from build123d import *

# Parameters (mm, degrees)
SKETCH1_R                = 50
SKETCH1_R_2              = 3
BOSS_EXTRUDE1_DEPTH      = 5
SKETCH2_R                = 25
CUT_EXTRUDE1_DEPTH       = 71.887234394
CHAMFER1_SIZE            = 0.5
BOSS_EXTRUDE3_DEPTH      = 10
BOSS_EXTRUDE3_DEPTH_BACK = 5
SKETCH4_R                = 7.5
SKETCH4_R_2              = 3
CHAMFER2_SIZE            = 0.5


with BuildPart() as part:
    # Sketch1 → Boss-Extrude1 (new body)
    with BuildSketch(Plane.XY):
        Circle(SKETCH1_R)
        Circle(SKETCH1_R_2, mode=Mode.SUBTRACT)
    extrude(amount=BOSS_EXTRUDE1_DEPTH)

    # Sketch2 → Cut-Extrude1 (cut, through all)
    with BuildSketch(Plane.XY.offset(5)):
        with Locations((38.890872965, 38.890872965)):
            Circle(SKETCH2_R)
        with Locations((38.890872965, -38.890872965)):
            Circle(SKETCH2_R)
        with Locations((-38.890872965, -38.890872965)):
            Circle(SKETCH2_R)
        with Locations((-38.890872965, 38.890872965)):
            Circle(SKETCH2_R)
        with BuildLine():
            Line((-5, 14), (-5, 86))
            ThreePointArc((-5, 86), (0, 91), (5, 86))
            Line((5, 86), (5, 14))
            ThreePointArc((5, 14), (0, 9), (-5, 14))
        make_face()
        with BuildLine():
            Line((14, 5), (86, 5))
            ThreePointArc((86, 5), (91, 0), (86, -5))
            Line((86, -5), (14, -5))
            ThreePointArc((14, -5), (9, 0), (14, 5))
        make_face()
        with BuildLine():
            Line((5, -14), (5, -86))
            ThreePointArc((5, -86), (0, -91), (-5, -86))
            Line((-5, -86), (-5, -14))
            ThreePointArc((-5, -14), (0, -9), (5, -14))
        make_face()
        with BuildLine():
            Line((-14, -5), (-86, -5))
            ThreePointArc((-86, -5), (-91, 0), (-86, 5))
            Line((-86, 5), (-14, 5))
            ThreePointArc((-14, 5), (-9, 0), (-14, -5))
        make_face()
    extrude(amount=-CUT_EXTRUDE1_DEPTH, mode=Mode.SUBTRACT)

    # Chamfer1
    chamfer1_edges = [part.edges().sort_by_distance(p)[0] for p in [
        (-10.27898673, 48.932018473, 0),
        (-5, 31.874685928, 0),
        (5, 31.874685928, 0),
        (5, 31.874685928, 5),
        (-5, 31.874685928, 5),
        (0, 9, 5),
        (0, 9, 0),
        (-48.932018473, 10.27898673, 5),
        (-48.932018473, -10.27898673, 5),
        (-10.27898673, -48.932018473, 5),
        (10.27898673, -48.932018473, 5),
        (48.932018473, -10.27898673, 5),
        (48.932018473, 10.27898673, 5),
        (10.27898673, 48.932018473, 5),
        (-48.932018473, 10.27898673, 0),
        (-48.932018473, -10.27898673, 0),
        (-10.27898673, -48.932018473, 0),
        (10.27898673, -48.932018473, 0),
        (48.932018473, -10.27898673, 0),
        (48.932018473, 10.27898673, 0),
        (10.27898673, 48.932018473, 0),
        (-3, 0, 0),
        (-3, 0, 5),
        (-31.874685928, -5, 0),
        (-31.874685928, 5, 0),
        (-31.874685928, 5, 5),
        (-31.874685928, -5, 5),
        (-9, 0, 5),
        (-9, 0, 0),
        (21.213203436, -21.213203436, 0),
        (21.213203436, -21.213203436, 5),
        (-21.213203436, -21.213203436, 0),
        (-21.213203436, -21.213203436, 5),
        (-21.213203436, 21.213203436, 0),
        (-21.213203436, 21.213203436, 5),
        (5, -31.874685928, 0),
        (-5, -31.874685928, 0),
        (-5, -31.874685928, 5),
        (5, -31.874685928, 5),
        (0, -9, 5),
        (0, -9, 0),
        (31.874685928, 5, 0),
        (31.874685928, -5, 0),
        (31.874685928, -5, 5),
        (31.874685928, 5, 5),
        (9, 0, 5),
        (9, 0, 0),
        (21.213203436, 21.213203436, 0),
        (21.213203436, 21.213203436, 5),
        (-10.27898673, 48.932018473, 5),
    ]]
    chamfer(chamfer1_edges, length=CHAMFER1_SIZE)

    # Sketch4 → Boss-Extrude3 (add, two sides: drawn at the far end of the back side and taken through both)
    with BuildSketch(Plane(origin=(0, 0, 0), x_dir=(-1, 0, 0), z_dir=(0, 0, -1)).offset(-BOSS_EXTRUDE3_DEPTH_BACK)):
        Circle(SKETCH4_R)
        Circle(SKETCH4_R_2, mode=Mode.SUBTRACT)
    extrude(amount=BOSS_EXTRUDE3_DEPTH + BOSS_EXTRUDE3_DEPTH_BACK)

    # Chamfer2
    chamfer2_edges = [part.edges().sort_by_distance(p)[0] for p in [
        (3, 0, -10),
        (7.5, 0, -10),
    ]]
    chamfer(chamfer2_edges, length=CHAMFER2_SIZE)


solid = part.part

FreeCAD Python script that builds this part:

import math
import FreeCAD as App
import Part
import Sketcher
from FreeCAD import Vector


def edges_at(feature, points):
    """Names of the edges that pass closest to the given points."""
    edges = feature.Shape.Edges
    near = lambda p: min(range(len(edges)), key=lambda i: edges[i].distToShape(Part.Vertex(*p))[0])
    return sorted({f"Edge{near(p) + 1}" for p in points})

doc = App.newDocument("Part")
body = doc.addObject("PartDesign::Body", "Body")

# Sketch on XY plane
sketch1 = body.newObject("Sketcher::SketchObject", "Sketch")
sketch1.AttachmentSupport = (doc.getObject("XY_Plane"), [""])
sketch1.MapMode = "FlatFace"
sketch1.addGeometry([
    Part.Circle(Vector(0, 0, 0), Vector(0, 0, 1), 50),
    Part.Circle(Vector(0, 0, 0), Vector(0, 0, 1), 3),
], False)
sketch1.addConstraint([
    Sketcher.Constraint("Coincident", 0, 3, -1, 1),
    Sketcher.Constraint("Coincident", 1, 3, -1, 1),
    Sketcher.Constraint("Diameter", 0, 100.0),
    Sketcher.Constraint("Diameter", 1, 6.0),
])
pad1 = body.newObject("PartDesign::Pad", "Pad")
pad1.Profile = sketch1
pad1.Length = 5

# Sketch on XY plane
sketch2 = body.newObject("Sketcher::SketchObject", "Sketch001")
sketch2.AttachmentSupport = (doc.getObject("XY_Plane"), [""])
sketch2.MapMode = "FlatFace"
sketch2.AttachmentOffset = App.Placement(Vector(0, 0, 5), App.Rotation())
sketch2.addGeometry([
    Part.Circle(Vector(39, 39, 0), Vector(0, 0, 1), 25),  # 0
    Part.Circle(Vector(39, -39, 0), Vector(0, 0, 1), 25),  # 1
    Part.Circle(Vector(-39, -39, 0), Vector(0, 0, 1), 25),  # 2
    Part.Circle(Vector(-39, 39, 0), Vector(0, 0, 1), 25),  # 3
    Part.LineSegment(Vector(-5, 86, 0), Vector(-5, 14, 0)),  # 4
    Part.ArcOfCircle(Part.Circle(Vector(0, 14, 0), Vector(0, 0, 1), 5), math.radians(180), math.radians(360)),  # 5
    Part.LineSegment(Vector(5, 14, 0), Vector(5, 86, 0)),  # 6
    Part.ArcOfCircle(Part.Circle(Vector(0, 86, 0), Vector(0, 0, 1), 5), math.radians(0), math.radians(180)),  # 7
    Part.LineSegment(Vector(86, 5, 0), Vector(14, 5, 0)),  # 8
    Part.ArcOfCircle(Part.Circle(Vector(14, 0, 0), Vector(0, 0, 1), 5), math.radians(90), math.radians(270)),  # 9
    Part.LineSegment(Vector(14, -5, 0), Vector(86, -5, 0)),  # 10
    Part.ArcOfCircle(Part.Circle(Vector(86, 0, 0), Vector(0, 0, 1), 5), math.radians(-90), math.radians(90)),  # 11
    Part.LineSegment(Vector(5, -86, 0), Vector(5, -14, 0)),  # 12
    Part.ArcOfCircle(Part.Circle(Vector(0, -14, 0), Vector(0, 0, 1), 5), math.radians(0), math.radians(180)),  # 13
    Part.LineSegment(Vector(-5, -14, 0), Vector(-5, -86, 0)),  # 14
    Part.ArcOfCircle(Part.Circle(Vector(0, -86, 0), Vector(0, 0, 1), 5), math.radians(180), math.radians(360)),  # 15
    Part.LineSegment(Vector(-86, -5, 0), Vector(-14, -5, 0)),  # 16
    Part.ArcOfCircle(Part.Circle(Vector(-14, 0, 0), Vector(0, 0, 1), 5), math.radians(-90), math.radians(90)),  # 17
    Part.LineSegment(Vector(-14, 5, 0), Vector(-86, 5, 0)),  # 18
    Part.ArcOfCircle(Part.Circle(Vector(-86, 0, 0), Vector(0, 0, 1), 5), math.radians(90), math.radians(270)),  # 19
], False)
sketch2.addConstraint([
    Sketcher.Constraint("Tangent", 4, 2, 5, 1),
    Sketcher.Constraint("Tangent", 5, 2, 6, 1),
    Sketcher.Constraint("Tangent", 6, 2, 7, 1),
    Sketcher.Constraint("Tangent", 7, 2, 4, 1),
    Sketcher.Constraint("Tangent", 8, 2, 9, 1),
    Sketcher.Constraint("Tangent", 9, 2, 10, 1),
    Sketcher.Constraint("Tangent", 10, 2, 11, 1),
    Sketcher.Constraint("Tangent", 11, 2, 8, 1),
    Sketcher.Constraint("Tangent", 12, 2, 13, 1),
    Sketcher.Constraint("Tangent", 13, 2, 14, 1),
    Sketcher.Constraint("Tangent", 14, 2, 15, 1),
    Sketcher.Constraint("Tangent", 15, 2, 12, 1),
    Sketcher.Constraint("Tangent", 16, 2, 17, 1),
    Sketcher.Constraint("Tangent", 17, 2, 18, 1),
    Sketcher.Constraint("Tangent", 18, 2, 19, 1),
    Sketcher.Constraint("Tangent", 19, 2, 16, 1),
    Sketcher.Constraint("Vertical", 4),
    Sketcher.Constraint("Vertical", 6),
    Sketcher.Constraint("Horizontal", 8),
    Sketcher.Constraint("Horizontal", 10),
    Sketcher.Constraint("Vertical", 12),
    Sketcher.Constraint("Vertical", 14),
    Sketcher.Constraint("Horizontal", 16),
    Sketcher.Constraint("Horizontal", 18),
    Sketcher.Constraint("Equal", 0, 1),
    Sketcher.Constraint("Equal", 1, 2),
    Sketcher.Constraint("Equal", 2, 3),
    Sketcher.Constraint("Equal", 7, 9),
    Sketcher.Constraint("Equal", 11, 13),
    Sketcher.Constraint("Equal", 15, 17),
    Sketcher.Constraint("Symmetric", 0, 3, 2, 3, -1, 1),
    Sketcher.Constraint("Symmetric", 1, 3, 3, 3, -1, 1),
    Sketcher.Constraint("Symmetric", 5, 3, 13, 3, -1, 1),
    Sketcher.Constraint("Symmetric", 9, 3, 17, 3, -1, 1),
    Sketcher.Constraint("Symmetric", 1, 3, 2, 3, -2),
    Sketcher.Constraint("Symmetric", 11, 3, 19, 3, -2),
    Sketcher.Constraint("Symmetric", 7, 3, 15, 3, -1),
    Sketcher.Constraint("Equal", 18, 4),
    Sketcher.Constraint("Diameter", 0, 50.0),
    Sketcher.Constraint("Radius", 5, 5.0),
    Sketcher.Constraint("DistanceX", 8, 2, 8, 1, 72.0),
    Sketcher.Constraint("DistanceY", -1, 1, 5, 3, 14.0),
    Sketcher.Constraint("DistanceX", -1, 1, 9, 3, 14.0),
    Sketcher.Constraint("DistanceX", -1, 1, 0, 3, 38.890873),
    Sketcher.Constraint("DistanceY", -1, 1, 0, 3, 38.890873),
])
pocket1 = body.newObject("PartDesign::Pocket", "Pocket")
pocket1.Profile = sketch2
pocket1.Type = "ThroughAll"
doc.recompute()

chamfer = body.newObject("PartDesign::Chamfer", "Chamfer")
chamfer.Base = (pocket1, edges_at(pocket1, [
    (-10.279, 48.932, 0),
    (-5, 31.875, 0),
    (5, 31.875, 0),
    (5, 31.875, 5),
    (-5, 31.875, 5),
    (0, 9, 5),
    (0, 9, 0),
    (-48.932, 10.279, 5),
    (-48.932, -10.279, 5),
    (-10.279, -48.932, 5),
    (10.279, -48.932, 5),
    (48.932, -10.279, 5),
    (48.932, 10.279, 5),
    (10.279, 48.932, 5),
    (-48.932, 10.279, 0),
    (-48.932, -10.279, 0),
    (-10.279, -48.932, 0),
    (10.279, -48.932, 0),
    (48.932, -10.279, 0),
    (48.932, 10.279, 0),
    (10.279, 48.932, 0),
    (-3, 0, 0),
    (-3, 0, 5),
    (-31.875, -5, 0),
    (-31.875, 5, 0),
    (-31.875, 5, 5),
    (-31.875, -5, 5),
    (-9, 0, 5),
    (-9, 0, 0),
    (21.213, -21.213, 0),
    (21.213, -21.213, 5),
    (-21.213, -21.213, 0),
    (-21.213, -21.213, 5),
    (-21.213, 21.213, 0),
    (-21.213, 21.213, 5),
    (5, -31.875, 0),
    (-5, -31.875, 0),
    (-5, -31.875, 5),
    (5, -31.875, 5),
    (0, -9, 5),
    (0, -9, 0),
    (31.875, 5, 0),
    (31.875, -5, 0),
    (31.875, -5, 5),
    (31.875, 5, 5),
    (9, 0, 5),
    (9, 0, 0),
    (21.213, 21.213, 0),
    (21.213, 21.213, 5),
    (-10.279, 48.932, 5),
]))
chamfer.Size = 0.5

# Sketch on XY plane
sketch3 = body.newObject("Sketcher::SketchObject", "Sketch002")
sketch3.AttachmentSupport = (doc.getObject("XY_Plane"), [""])
sketch3.MapMode = "FlatFace"
sketch3.addGeometry([
    Part.Circle(Vector(0, 0, 0), Vector(0, 0, 1), 7.5),
    Part.Circle(Vector(0, 0, 0), Vector(0, 0, 1), 3),
], False)
sketch3.addConstraint([
    Sketcher.Constraint("Coincident", 0, 3, -1, 1),
    Sketcher.Constraint("Coincident", 1, 3, -1, 1),
    Sketcher.Constraint("Diameter", 0, 15.0),
    Sketcher.Constraint("Diameter", 1, 6.0),
])
pad2 = body.newObject("PartDesign::Pad", "Pad001")
pad2.Profile = sketch3
pad2.Type = "TwoLengths"
pad2.Length = 10
pad2.Length2 = 5
pad2.Reversed = True
doc.recompute()

chamfer2 = body.newObject("PartDesign::Chamfer", "Chamfer001")
chamfer2.Base = (pad2, edges_at(pad2, [(3, 0, -10), (7.5, 0, -10)]))
chamfer2.Size = 0.5

doc.recompute()
